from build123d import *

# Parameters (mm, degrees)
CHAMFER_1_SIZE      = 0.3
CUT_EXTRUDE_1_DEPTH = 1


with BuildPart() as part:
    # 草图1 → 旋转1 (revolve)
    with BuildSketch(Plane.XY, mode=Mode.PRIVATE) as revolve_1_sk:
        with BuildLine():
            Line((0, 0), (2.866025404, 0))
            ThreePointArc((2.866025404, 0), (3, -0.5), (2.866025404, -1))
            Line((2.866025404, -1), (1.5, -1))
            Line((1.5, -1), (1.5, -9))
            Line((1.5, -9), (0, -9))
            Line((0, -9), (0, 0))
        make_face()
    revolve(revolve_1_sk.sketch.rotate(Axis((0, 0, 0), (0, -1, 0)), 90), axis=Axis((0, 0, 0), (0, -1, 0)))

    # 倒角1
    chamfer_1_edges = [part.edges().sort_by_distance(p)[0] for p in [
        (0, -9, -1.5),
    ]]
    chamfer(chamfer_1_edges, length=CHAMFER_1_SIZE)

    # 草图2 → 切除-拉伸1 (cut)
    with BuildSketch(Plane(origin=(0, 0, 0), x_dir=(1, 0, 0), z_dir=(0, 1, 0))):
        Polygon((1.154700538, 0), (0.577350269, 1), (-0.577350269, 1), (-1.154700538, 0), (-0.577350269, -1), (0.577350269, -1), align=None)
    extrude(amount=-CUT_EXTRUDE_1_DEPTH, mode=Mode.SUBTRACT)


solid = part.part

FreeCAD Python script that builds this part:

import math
import FreeCAD as App
import Part
import Sketcher
Q = App.Units.Quantity


def edges_at(feature, points):
    """Names of the edges that pass closest to the given points."""
    edges = feature.Shape.Edges
    near = lambda p: min(range(len(edges)), key=lambda i: edges[i].distToShape(Part.Vertex(*p))[0])
    return sorted({f"Edge{near(p) + 1}" for p in points})


def add_polygon(sketch, points):
    """Adds a closed chain of lines whose ends are joined by coincident constraints."""
    first, n = sketch.GeometryCount, len(points)
    for a, b in zip(points, points[1:] + points[:1]):
        sketch.addGeometry(Part.LineSegment(App.Vector(*a, 0), App.Vector(*b, 0)), False)
    for i in range(n):
        sketch.addConstraint(Sketcher.Constraint("Coincident", first + i, 2, first + (i + 1) % n, 1))

doc = App.newDocument("Part")
body = doc.addObject("PartDesign::Body", "Body")

# Sketch on XY plane
sketch1 = doc.addObject("Sketcher::SketchObject", "Sketch")
body.addObject(sketch1)
sketch1.AttachmentSupport = (doc.XY_Plane, [""])
sketch1.MapMode = "FlatFace"
sketch1.addGeometry([
    Part.LineSegment(App.Vector(2.9, 0, 0), App.Vector(0, 0, 0)),  # 0
    Part.LineSegment(App.Vector(0, 0, 0), App.Vector(0, -9, 0)),  # 1
    Part.LineSegment(App.Vector(0, -9, 0), App.Vector(1.5, -9, 0)),  # 2
    Part.LineSegment(App.Vector(1.5, -9, 0), App.Vector(1.5, -1, 0)),  # 3
    Part.LineSegment(App.Vector(1.5, -1, 0), App.Vector(2.9, -1, 0)),  # 4
    Part.ArcOfCircle(Part.Circle(App.Vector(2, -0.5, 0), App.Vector(0, 0, 1), 1), math.radians(-30), math.radians(30)),  # 5
], False)
sketch1.addConstraint([
    Sketcher.Constraint("Coincident", 0, 2, 1, 1),
    Sketcher.Constraint("Coincident", 1, 2, 2, 1),
    Sketcher.Constraint("Coincident", 2, 2, 3, 1),
    Sketcher.Constraint("Coincident", 3, 2, 4, 1),
    Sketcher.Constraint("Coincident", 4, 2, 5, 1),
    Sketcher.Constraint("Coincident", 5, 2, 0, 1),
    Sketcher.Constraint("Horizontal", 0),
    Sketcher.Constraint("Vertical", 1),
    Sketcher.Constraint("Horizontal", 2),
    Sketcher.Constraint("Vertical", 3),
    Sketcher.Constraint("Horizontal", 4),
    Sketcher.Constraint("Coincident", 0, 2, -1, 1),
    Sketcher.Constraint("Vertical", 4, 2, 5, 2),
    Sketcher.Constraint("Radius", 5, Q("1 mm")),
    Sketcher.Constraint("DistanceY", 1, 2, 1, 1, Q("9 mm")),
    Sketcher.Constraint("DistanceY", 3, 1, 3, 2, Q("8 mm")),
    Sketcher.Constraint("DistanceX", 2, 1, 2, 2, Q("1.5 mm")),
    Sketcher.Constraint("DistanceX", -1, 1, 5, 3, Q("2 mm")),
])
revolution = doc.addObject("PartDesign::Revolution", "Revolution")
body.addObject(revolution)
revolution.Profile = sketch1
revolution.ReferenceAxis = (sketch1, ["V_Axis"])
revolution.Angle = 360
doc.recompute()

chamfer = doc.addObject("PartDesign::Chamfer", "Chamfer")
body.addObject(chamfer)
chamfer.Base = (revolution, edges_at(revolution, [(0, -9, -1.5)]))
chamfer.Size = 0.3

# Sketch on XZ plane
sketch2 = doc.addObject("Sketcher::SketchObject", "Sketch001")
body.addObject(sketch2)
sketch2.AttachmentSupport = (doc.XZ_Plane, [""])
sketch2.MapMode = "FlatFace"
add_polygon(sketch2, [(1.2, 0), (0.6, -1), (-0.6, -1), (-1.2, 0), (-0.6, 1), (0.6, 1)])  # lines 0-5
sketch2.addConstraint([
    Sketcher.Constraint("Horizontal", 1),
    Sketcher.Constraint("Horizontal", 4),
    Sketcher.Constraint("Symmetric", 0, 2, 3, 2, -1, 1),
    Sketcher.Constraint("Symmetric", 2, 2, 5, 2, -1, 1),
    Sketcher.Constraint("PointOnObject", 2, 2, -1),
    Sketcher.Constraint("Parallel", 2, 5),
    Sketcher.Constraint("Vertical", 1, 2, 3, 2),
    Sketcher.Constraint("Angle", 0, Q("-120 deg")),
    Sketcher.Constraint("DistanceY", 0, 2, -1, 1, Q("1 mm")),
    Sketcher.Constraint("DistanceX", 1, 2, 1, 1, Q("1.154701 mm")),
])
pocket1 = doc.addObject("PartDesign::Pocket", "Pocket")
body.addObject(pocket1)
pocket1.Profile = sketch2
pocket1.Length = 1
pocket1.Reversed = True

doc.recompute()
